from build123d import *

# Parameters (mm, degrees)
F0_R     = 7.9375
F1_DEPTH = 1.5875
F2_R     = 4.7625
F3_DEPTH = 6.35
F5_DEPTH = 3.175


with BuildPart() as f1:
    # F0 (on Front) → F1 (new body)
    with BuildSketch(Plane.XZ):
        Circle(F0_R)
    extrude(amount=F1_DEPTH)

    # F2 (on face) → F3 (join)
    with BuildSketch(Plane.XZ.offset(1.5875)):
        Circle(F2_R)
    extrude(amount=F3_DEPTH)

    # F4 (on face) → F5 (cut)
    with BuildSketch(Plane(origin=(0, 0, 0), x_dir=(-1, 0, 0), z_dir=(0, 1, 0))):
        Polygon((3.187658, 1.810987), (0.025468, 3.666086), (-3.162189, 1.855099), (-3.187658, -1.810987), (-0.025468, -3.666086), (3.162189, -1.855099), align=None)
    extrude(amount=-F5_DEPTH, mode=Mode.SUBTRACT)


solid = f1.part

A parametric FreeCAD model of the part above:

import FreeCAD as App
import Part
import Sketcher

V = App.Vector
Q = App.Units.Quantity


def add_polygon(sketch, points):
    """Adds a closed chain of lines whose ends are joined by coincident constraints."""
    first, n = sketch.GeometryCount, len(points)
    for a, b in zip(points, points[1:] + points[:1]):
        sketch.addGeometry(Part.LineSegment(App.Vector(*a, 0), App.Vector(*b, 0)), False)
    for i in range(n):
        sketch.addConstraint(Sketcher.Constraint("Coincident", first + i, 2, first + (i + 1) % n, 1))

doc = App.newDocument("Part")
body = doc.addObject("PartDesign::Body", "Body")

sketch1 = body.newObject("Sketcher::SketchObject", "Sketch")
sketch1.AttachmentSupport = (doc.getObject("XZ_Plane"), [""])
sketch1.MapMode = "FlatFace"
sketch1.addGeometry(Part.Circle(V(0, 0, 0), V(0, 0, 1), 7.9375), False)
sketch1.addConstraint([
    Sketcher.Constraint("Coincident", 0, 3, -1, 1),
    Sketcher.Constraint("Diameter", 0, Q("0.625 in")),
])
pad1 = body.newObject("PartDesign::Pad", "Pad")
pad1.Profile = sketch1
pad1.Length = Q("0.0625 in")

sketch2 = body.newObject("Sketcher::SketchObject", "Sketch001")
sketch2.AttachmentSupport = (doc.getObject("XZ_Plane"), [""])
sketch2.MapMode = "FlatFace"
sketch2.AttachmentOffset = App.Placement(V(0, 0, 0.0625 * 25.4), App.Rotation())
sketch2.addGeometry(Part.Circle(V(0, 0, 0), V(0, 0, 1), 4.7625), False)
sketch2.addConstraint([
    Sketcher.Constraint("Coincident", 0, 3, -1, 1),
    Sketcher.Constraint("Diameter", 0, Q("0.375 in")),
])
pad2 = body.newObject("PartDesign::Pad", "Pad001")
pad2.Profile = sketch2
pad2.Length = Q("0.25 in")

sketch3 = body.newObject("Sketcher::SketchObject", "Sketch002")
sketch3.AttachmentSupport = (doc.getObject("XZ_Plane"), [""])
sketch3.MapMode = "FlatFace"
add_polygon(sketch3, [(-3.187658, 1.810987), (-0.025468, 3.666086), (3.162189, 1.855099), (3.187658, -1.810987), (0.025468, -3.666086), (-3.162189, -1.855099)])
sketch3.addConstraint([
    Sketcher.Constraint("Symmetric", 0, 2, 3, 2, -1, 1),
    Sketcher.Constraint("Symmetric", 1, 2, 4, 2, -1, 1),
    Sketcher.Constraint("Symmetric", 2, 2, 5, 2, -1, 1),
    Sketcher.Constraint("Equal", 0, 1),
    Sketcher.Constraint("Equal", 1, 2),
    Sketcher.Constraint("DistanceY", -1, 1, 1, 2, 1.855099),
    Sketcher.Constraint("DistanceY", 3, 2, 2, 2, 1.855099),
    Sketcher.Constraint("DistanceX", 0, 2, -1, 1, 0.025468),
    Sketcher.Constraint("DistanceX", -1, 1, 1, 2, 3.162189),
])
pocket1 = body.newObject("PartDesign::Pocket", "Pocket")
pocket1.Profile = sketch3
pocket1.Length = Q("0.125 in")
pocket1.Reversed = True

doc.recompute()
